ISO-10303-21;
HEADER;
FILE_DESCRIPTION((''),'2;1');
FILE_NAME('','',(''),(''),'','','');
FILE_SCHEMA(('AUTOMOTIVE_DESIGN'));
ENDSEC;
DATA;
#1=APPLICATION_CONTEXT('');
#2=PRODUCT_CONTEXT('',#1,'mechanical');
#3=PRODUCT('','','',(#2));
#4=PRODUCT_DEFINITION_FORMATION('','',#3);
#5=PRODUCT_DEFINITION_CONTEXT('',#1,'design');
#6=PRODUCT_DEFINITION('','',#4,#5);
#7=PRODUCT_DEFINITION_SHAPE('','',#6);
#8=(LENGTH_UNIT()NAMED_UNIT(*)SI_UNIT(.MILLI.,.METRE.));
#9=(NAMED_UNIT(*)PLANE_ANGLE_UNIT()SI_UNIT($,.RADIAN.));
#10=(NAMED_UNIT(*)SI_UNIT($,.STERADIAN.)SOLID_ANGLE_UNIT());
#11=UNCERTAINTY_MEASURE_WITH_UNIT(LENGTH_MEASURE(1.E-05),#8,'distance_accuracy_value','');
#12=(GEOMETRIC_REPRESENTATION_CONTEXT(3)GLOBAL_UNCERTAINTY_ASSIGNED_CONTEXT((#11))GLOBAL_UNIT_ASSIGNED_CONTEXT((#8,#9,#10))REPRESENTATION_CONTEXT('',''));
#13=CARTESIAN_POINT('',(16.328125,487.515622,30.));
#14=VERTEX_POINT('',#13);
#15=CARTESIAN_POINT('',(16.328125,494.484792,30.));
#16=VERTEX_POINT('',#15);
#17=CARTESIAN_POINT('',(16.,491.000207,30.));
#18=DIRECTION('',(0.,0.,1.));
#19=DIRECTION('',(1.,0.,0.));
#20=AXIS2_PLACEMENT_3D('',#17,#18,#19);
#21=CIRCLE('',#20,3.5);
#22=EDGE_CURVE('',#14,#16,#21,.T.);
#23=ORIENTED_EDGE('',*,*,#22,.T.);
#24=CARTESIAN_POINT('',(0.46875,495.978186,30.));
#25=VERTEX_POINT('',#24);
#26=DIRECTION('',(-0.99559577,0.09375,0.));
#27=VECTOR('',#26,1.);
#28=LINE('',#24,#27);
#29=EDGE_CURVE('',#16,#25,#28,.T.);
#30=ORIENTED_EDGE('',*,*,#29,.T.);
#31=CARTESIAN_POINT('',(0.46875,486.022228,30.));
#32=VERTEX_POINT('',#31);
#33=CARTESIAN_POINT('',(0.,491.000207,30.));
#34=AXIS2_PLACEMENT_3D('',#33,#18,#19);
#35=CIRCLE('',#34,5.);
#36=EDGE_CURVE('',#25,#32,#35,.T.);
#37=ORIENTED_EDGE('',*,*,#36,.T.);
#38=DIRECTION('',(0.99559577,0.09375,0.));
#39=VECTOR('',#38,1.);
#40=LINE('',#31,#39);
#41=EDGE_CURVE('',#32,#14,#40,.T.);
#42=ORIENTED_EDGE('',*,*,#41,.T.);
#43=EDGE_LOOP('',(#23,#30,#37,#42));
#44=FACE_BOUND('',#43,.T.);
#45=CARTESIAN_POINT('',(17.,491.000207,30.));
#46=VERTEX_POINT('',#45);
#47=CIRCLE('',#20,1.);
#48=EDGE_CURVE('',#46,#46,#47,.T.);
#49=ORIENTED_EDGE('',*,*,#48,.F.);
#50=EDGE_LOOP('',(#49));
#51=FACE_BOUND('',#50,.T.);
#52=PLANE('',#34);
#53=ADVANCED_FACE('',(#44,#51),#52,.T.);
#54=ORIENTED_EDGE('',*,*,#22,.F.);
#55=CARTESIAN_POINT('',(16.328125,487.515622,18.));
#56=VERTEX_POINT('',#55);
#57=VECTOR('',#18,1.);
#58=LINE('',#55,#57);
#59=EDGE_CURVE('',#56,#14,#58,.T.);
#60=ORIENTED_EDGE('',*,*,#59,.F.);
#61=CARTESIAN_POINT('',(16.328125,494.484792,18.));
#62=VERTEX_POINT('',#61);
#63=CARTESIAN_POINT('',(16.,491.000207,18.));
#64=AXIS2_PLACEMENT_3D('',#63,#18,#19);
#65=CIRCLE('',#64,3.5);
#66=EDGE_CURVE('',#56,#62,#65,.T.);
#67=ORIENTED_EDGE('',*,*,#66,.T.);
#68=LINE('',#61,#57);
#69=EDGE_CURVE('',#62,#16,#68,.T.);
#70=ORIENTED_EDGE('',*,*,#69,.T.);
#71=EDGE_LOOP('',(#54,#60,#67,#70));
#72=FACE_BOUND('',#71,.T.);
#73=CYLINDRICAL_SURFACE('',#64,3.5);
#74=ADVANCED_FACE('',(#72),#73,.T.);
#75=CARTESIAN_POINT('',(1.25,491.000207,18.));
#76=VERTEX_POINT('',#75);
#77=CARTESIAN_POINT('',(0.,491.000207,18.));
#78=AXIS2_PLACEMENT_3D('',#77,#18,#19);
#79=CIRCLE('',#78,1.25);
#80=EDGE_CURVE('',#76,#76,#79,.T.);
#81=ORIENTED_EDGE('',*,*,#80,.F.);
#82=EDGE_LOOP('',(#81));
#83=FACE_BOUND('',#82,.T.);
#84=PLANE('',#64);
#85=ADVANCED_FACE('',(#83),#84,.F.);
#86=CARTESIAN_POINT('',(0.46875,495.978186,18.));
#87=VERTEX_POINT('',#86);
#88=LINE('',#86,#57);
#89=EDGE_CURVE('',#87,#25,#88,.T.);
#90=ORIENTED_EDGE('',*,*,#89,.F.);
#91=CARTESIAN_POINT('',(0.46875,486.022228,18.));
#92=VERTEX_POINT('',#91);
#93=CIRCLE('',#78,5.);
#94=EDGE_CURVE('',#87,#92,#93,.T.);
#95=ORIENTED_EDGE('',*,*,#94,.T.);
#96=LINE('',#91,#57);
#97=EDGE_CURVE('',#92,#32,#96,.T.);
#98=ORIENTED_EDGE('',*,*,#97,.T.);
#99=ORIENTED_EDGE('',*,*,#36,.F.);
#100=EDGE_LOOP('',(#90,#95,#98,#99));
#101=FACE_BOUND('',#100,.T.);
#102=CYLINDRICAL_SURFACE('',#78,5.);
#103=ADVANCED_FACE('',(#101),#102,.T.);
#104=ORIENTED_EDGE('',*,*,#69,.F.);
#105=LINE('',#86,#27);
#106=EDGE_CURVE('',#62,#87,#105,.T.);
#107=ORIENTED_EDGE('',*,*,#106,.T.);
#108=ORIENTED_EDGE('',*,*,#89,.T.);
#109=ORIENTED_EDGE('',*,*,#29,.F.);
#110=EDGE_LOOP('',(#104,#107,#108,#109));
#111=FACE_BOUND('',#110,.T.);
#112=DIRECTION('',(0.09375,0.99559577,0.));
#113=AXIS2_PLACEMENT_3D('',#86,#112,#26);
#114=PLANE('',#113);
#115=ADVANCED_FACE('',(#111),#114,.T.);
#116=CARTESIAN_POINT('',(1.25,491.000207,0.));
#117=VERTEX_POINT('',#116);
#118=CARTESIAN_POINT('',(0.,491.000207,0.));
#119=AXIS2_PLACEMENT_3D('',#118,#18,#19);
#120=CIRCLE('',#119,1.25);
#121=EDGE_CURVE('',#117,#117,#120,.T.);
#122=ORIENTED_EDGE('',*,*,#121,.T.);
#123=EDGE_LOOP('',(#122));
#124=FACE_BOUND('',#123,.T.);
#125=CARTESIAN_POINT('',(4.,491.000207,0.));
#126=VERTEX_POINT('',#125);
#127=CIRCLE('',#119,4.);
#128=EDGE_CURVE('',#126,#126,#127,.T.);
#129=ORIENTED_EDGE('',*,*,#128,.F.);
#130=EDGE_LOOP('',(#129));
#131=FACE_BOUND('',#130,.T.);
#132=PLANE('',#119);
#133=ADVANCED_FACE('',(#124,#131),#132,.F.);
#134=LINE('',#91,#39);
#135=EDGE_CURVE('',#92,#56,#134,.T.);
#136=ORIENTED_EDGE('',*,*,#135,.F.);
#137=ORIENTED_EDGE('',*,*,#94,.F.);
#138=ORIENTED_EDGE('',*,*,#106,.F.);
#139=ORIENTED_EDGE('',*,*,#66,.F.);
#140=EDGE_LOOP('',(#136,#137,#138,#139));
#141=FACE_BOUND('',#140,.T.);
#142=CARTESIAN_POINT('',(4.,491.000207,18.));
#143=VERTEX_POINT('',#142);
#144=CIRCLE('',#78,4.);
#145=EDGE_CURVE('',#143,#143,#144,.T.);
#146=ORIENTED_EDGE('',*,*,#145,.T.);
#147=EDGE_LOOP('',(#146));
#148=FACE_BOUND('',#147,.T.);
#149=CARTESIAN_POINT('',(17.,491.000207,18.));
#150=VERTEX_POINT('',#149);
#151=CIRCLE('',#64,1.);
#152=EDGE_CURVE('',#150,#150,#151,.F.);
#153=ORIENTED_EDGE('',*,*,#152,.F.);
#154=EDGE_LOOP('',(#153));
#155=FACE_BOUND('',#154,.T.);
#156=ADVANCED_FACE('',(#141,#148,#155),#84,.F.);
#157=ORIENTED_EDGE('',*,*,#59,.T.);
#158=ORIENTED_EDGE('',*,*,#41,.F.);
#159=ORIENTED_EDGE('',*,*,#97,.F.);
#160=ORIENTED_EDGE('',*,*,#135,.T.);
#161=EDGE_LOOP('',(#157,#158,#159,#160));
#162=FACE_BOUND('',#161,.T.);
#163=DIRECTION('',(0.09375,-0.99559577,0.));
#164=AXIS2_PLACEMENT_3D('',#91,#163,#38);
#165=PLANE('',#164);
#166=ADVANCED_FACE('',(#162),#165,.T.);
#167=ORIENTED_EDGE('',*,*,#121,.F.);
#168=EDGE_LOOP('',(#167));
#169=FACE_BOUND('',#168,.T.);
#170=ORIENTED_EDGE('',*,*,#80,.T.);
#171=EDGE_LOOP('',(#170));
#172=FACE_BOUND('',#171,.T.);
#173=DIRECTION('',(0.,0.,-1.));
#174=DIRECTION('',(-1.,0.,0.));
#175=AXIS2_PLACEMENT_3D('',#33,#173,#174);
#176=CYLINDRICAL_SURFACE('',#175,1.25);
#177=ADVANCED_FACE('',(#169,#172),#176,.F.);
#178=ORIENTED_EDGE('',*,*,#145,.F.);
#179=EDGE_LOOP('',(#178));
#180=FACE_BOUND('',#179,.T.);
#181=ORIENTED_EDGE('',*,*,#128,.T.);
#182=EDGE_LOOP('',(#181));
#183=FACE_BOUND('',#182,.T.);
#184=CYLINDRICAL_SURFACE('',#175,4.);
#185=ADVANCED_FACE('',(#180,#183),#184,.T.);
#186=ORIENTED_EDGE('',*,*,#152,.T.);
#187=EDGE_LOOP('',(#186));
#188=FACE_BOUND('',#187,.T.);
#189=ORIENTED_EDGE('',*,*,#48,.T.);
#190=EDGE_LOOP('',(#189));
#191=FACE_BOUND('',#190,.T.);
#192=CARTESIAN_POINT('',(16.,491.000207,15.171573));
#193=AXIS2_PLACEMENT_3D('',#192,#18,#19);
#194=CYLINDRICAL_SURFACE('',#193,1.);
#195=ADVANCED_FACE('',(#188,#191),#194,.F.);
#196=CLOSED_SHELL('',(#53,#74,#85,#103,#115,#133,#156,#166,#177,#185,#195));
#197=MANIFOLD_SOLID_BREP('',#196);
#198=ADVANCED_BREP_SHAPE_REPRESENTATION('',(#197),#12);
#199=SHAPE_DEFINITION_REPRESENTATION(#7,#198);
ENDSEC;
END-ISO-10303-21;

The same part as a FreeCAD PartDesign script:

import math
import FreeCAD as App
import Part
import Sketcher

V = App.Vector

doc = App.newDocument("Part")
params = doc.addObject("Spreadsheet::Sheet", "Params")
for row, (alias, value) in enumerate([
    ("sketch1_diameter", "8 mm"),
    ("sketch1_diameter2", "2.5 mm"),
    ("pad1_length", "30 mm"),
    ("sketch2_radius", "5 mm"),
    ("sketch2_radius2", "3.5 mm"),
    ("pad2_length", "12 mm"),
    ("sketch3_diameter", "2 mm"),
    ("pocket1_length", "12 mm"),
], start=1):
    params.set(f"A{row}", alias)
    params.set(f"B{row}", "=" + value)
    params.setAlias(f"B{row}", alias)

body = doc.addObject("PartDesign::Body", "Body")

# Sketch on XY plane
sketch1 = doc.addObject("Sketcher::SketchObject", "Sketch")
body.addObject(sketch1)
sketch1.AttachmentSupport = (doc.XY_Plane, [""])
sketch1.MapMode = "FlatFace"
sketch1.addGeometry([
    Part.Circle(V(0, 491, 0), V(0, 0, 1), 4),
    Part.Circle(V(0, 491, 0), V(0, 0, 1), 1.2),
], False)
sketch1.addConstraint([
    Sketcher.Constraint("Coincident", 1, 3, 0, 3),
    Sketcher.Constraint("PointOnObject", 0, 3, -2),
    Sketcher.Constraint("Diameter", 0, 8.0),
    Sketcher.Constraint("Diameter", 1, 2.5),
    Sketcher.Constraint("DistanceY", -1, 1, 0, 3, 491.000207),
])
sketch1.setExpression("Constraints[2]", "Params.sketch1_diameter")
sketch1.setExpression("Constraints[3]", "Params.sketch1_diameter2")
pad1 = doc.addObject("PartDesign::Pad", "Pad")
body.addObject(pad1)
pad1.Profile = sketch1
pad1.setExpression("Length", "Params.pad1_length")

# Sketch on XY plane
sketch2 = doc.addObject("Sketcher::SketchObject", "Sketch001")
body.addObject(sketch2)
sketch2.AttachmentSupport = (doc.XY_Plane, [""])
sketch2.MapMode = "FlatFace"
sketch2.AttachmentOffset = App.Placement(V(0, 0, 30), App.Rotation())
sketch2.addGeometry([
    Part.LineSegment(V(16.3, 494.5, 0), V(0.5, 496, 0)),
    Part.ArcOfCircle(Part.Circle(V(0, 491, 0), V(0, 0, 1), 5), math.radians(85), math.radians(275)),
    Part.LineSegment(V(0.5, 486, 0), V(16.3, 487.5, 0)),
    Part.ArcOfCircle(Part.Circle(V(16, 491, 0), V(0, 0, 1), 3.5), math.radians(-85), math.radians(85)),
], False)
sketch2.addConstraint([
    Sketcher.Constraint("Tangent", 0, 2, 1, 1),
    Sketcher.Constraint("Tangent", 1, 2, 2, 1),
    Sketcher.Constraint("Tangent", 2, 2, 3, 1),
    Sketcher.Constraint("Tangent", 3, 2, 0, 1),
    Sketcher.Constraint("PointOnObject", 1, 3, -2),
    Sketcher.Constraint("Horizontal", 1, 3, 3, 3),
    Sketcher.Constraint("Radius", 1, 5.0),
    Sketcher.Constraint("Radius", 3, 3.5),
    Sketcher.Constraint("DistanceX", -1, 1, 3, 3, 16.0),
    Sketcher.Constraint("DistanceY", -1, 1, 1, 2, 486.022228),
])
sketch2.setExpression("Constraints[6]", "Params.sketch2_radius")
sketch2.setExpression("Constraints[7]", "Params.sketch2_radius2")
pad2 = doc.addObject("PartDesign::Pad", "Pad001")
body.addObject(pad2)
pad2.Profile = sketch2
pad2.setExpression("Length", "Params.pad2_length")
pad2.Reversed = True

# Sketch on XY plane
sketch3 = doc.addObject("Sketcher::SketchObject", "Sketch002")
body.addObject(sketch3)
sketch3.AttachmentSupport = (doc.XY_Plane, [""])
sketch3.MapMode = "FlatFace"
sketch3.AttachmentOffset = App.Placement(V(0, 0, 30), App.Rotation())
sketch3.addGeometry(Part.Circle(V(16, 491.000207, 0), V(0, 0, 1), 1), False)
sketch3.addConstraint([
    Sketcher.Constraint("Diameter", 0, 2.0),
    Sketcher.Constraint("DistanceX", -1, 1, 0, 3, 16.0),
    Sketcher.Constraint("DistanceY", -1, 1, 0, 3, 491.000207),
])
sketch3.setExpression("Constraints[0]", "Params.sketch3_diameter")
pocket1 = doc.addObject("PartDesign::Pocket", "Pocket")
body.addObject(pocket1)
pocket1.Profile = sketch3
pocket1.setExpression("Length", "Params.pocket1_length")

doc.recompute()
